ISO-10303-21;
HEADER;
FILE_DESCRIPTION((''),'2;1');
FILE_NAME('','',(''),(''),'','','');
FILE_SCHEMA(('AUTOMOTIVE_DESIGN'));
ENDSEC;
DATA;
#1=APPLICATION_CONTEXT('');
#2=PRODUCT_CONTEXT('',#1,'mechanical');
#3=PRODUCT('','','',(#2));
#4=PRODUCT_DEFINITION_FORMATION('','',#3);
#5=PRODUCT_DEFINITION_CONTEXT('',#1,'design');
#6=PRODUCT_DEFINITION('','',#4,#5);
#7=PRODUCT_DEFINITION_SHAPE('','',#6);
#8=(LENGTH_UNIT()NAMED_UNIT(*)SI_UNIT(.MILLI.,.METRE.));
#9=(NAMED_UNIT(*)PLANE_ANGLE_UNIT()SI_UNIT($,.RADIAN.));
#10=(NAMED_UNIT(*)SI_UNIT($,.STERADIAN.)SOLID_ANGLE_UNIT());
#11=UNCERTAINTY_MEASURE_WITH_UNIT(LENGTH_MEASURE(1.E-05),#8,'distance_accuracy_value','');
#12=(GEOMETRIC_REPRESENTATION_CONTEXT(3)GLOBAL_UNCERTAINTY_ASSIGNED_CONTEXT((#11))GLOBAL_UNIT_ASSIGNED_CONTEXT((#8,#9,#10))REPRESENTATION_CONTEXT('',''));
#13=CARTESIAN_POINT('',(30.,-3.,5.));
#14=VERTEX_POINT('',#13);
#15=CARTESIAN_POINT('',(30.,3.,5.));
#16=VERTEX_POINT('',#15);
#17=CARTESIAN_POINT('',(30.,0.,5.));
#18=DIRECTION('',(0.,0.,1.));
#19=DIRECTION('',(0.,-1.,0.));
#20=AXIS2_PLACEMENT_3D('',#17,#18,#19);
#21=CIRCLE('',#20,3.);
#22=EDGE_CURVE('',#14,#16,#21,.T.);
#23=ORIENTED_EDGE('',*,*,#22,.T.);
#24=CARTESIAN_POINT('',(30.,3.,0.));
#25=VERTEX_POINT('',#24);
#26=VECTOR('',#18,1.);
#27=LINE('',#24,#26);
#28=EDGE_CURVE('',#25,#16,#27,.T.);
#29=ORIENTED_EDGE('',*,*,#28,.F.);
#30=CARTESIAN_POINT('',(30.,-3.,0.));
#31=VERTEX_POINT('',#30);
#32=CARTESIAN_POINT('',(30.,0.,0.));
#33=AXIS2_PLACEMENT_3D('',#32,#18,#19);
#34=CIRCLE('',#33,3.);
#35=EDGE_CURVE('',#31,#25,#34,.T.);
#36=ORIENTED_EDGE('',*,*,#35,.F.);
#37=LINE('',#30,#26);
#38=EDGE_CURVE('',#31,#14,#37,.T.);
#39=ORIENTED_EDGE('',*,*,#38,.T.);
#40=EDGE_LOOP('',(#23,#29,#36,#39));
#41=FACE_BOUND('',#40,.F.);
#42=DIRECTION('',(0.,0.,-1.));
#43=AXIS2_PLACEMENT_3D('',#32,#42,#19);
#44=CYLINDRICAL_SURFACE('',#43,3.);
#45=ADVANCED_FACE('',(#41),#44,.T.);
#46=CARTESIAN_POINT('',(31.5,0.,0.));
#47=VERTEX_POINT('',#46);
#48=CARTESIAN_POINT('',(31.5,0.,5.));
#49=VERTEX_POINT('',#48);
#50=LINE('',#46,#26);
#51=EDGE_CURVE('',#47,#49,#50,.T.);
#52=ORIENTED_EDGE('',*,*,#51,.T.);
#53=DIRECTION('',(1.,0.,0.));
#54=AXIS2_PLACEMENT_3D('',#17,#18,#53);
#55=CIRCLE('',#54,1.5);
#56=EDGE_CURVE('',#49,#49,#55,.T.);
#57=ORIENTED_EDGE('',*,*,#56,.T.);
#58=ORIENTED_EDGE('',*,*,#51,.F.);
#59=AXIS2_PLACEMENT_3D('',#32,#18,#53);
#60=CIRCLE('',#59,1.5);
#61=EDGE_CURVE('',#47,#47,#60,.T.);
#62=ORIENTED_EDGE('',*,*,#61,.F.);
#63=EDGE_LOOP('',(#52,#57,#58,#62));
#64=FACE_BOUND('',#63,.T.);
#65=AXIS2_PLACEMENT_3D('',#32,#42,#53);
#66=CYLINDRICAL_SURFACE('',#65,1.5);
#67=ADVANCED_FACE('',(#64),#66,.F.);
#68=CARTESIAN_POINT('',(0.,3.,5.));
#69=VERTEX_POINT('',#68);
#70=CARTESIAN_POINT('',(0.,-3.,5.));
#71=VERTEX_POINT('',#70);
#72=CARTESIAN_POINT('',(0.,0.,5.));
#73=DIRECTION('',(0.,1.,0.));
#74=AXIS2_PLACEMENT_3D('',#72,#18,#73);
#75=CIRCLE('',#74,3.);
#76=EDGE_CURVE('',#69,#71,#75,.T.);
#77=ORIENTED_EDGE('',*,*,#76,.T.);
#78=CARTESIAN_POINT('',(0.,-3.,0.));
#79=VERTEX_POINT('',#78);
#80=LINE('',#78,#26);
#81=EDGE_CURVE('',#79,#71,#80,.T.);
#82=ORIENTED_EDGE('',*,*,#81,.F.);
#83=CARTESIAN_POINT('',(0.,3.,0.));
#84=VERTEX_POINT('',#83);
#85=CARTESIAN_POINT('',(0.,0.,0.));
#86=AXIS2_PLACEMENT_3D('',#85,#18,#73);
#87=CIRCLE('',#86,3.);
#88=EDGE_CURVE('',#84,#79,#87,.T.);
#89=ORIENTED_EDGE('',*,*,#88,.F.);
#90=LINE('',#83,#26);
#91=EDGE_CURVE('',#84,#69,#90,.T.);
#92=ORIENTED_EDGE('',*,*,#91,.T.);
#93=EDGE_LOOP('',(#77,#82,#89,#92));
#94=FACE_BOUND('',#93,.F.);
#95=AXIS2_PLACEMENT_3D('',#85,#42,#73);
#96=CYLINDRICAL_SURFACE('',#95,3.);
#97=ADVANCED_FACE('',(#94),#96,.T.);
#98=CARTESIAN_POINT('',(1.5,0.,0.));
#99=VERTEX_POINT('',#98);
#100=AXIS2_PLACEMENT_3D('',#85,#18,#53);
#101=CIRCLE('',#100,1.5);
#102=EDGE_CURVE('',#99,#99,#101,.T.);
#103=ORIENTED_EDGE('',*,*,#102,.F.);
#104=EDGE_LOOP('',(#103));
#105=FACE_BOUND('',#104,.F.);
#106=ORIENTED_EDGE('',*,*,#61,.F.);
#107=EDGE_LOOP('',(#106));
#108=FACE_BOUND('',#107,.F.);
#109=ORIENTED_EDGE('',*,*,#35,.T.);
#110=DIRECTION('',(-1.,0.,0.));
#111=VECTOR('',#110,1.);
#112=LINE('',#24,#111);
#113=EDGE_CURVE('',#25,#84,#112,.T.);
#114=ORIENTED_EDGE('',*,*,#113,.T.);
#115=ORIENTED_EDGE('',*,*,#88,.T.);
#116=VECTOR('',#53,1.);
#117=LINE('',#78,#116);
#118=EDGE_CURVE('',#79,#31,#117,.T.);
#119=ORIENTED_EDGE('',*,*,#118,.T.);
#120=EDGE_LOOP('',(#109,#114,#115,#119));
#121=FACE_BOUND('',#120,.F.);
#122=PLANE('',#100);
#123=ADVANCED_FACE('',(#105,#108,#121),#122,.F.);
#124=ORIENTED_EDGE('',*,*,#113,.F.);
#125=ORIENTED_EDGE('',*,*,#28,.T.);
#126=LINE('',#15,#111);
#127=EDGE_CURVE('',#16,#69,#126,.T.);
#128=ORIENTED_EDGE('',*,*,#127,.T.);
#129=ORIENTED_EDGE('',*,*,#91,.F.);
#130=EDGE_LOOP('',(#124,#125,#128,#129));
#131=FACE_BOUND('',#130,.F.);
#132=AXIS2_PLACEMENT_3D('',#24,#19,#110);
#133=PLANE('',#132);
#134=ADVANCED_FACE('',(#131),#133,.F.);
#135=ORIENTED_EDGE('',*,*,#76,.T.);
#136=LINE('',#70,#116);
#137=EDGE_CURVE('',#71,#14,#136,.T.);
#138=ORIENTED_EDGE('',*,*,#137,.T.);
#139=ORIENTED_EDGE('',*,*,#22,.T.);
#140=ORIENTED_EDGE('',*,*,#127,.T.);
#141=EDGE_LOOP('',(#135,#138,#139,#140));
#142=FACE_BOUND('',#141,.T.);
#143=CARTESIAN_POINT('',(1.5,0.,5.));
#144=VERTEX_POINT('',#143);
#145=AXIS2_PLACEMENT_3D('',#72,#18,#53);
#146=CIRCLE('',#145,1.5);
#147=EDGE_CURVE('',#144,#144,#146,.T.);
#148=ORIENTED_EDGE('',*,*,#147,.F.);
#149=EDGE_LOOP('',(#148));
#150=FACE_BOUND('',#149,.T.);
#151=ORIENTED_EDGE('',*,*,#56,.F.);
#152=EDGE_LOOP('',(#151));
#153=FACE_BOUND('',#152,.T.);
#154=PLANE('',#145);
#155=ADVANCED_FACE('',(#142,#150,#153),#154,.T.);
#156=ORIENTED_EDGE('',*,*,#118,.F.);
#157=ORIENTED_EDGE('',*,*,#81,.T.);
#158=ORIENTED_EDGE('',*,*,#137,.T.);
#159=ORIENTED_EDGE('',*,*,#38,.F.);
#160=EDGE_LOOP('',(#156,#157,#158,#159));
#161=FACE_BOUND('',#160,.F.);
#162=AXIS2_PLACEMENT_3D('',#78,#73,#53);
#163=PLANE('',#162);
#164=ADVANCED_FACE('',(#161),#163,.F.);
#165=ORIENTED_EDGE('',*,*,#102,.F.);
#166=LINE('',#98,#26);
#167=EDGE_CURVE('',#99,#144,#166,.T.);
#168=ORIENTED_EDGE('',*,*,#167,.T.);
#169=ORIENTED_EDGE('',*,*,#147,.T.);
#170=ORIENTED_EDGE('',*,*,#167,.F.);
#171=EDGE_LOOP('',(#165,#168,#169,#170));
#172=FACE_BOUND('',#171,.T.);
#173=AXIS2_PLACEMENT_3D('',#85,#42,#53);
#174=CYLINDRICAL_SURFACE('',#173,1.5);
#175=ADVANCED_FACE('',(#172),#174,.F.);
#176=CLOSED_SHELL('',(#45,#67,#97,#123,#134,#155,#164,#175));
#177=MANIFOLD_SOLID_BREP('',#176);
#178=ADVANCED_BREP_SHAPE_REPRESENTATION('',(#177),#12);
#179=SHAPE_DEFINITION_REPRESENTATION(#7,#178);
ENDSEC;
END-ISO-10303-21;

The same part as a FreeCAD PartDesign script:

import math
import FreeCAD as App
import Part
import Sketcher
from FreeCAD import Vector
Q = App.Units.Quantity

doc = App.newDocument("Part")
params = doc.addObject("Spreadsheet::Sheet", "Params")
for row, (alias, value) in enumerate([
    ("sketch1_diameter", "3 mm"),
    ("sketch1_radius", "3 mm"),
    ("sketch1_width", "30 mm"),
    ("pad1_length", "5 mm"),
], start=1):
    params.set(f"A{row}", alias)
    params.set(f"B{row}", "=" + value)
    params.setAlias(f"B{row}", alias)

body = doc.addObject("PartDesign::Body", "Body")

# Sketch on XY plane
sketch1 = body.newObject("Sketcher::SketchObject", "Sketch")
sketch1.AttachmentSupport = (doc.getObject("XY_Plane"), [""])
sketch1.MapMode = "FlatFace"
sketch1.addGeometry([
    Part.ArcOfCircle(Part.Circle(Vector(0, 0, 0), Vector(0, 0, 1), 3), math.radians(90), math.radians(270)),  # 0
    Part.LineSegment(Vector(0, -3, 0), Vector(30, -3, 0)),  # 1
    Part.ArcOfCircle(Part.Circle(Vector(30, 0, 0), Vector(0, 0, 1), 3), math.radians(-90), math.radians(90)),  # 2
    Part.LineSegment(Vector(30, 3, 0), Vector(0, 3, 0)),  # 3
    Part.Circle(Vector(0, 0, 0), Vector(0, 0, 1), 1.5),  # 4
    Part.Circle(Vector(30, 0, 0), Vector(0, 0, 1), 1.5),  # 5
], False)
sketch1.addConstraint([
    Sketcher.Constraint("Tangent", 0, 2, 1, 1),
    Sketcher.Constraint("Tangent", 1, 2, 2, 1),
    Sketcher.Constraint("Tangent", 2, 2, 3, 1),
    Sketcher.Constraint("Tangent", 3, 2, 0, 1),
    Sketcher.Constraint("Horizontal", 1),
    Sketcher.Constraint("Horizontal", 3),
    Sketcher.Constraint("Coincident", 0, 3, -1, 1),
    Sketcher.Constraint("Coincident", 4, 3, -1, 1),
    Sketcher.Constraint("Coincident", 5, 3, 2, 3),
    Sketcher.Constraint("Equal", 4, 5),
    Sketcher.Constraint("Diameter", 4, Q("3 mm")),
    Sketcher.Constraint("Radius", 0, Q("3 mm")),
    Sketcher.Constraint("DistanceX", 1, 1, 1, 2, Q("30 mm")),
])
sketch1.setExpression("Constraints[10]", "Params.sketch1_diameter")
sketch1.setExpression("Constraints[11]", "Params.sketch1_radius")
sketch1.setExpression("Constraints[12]", "Params.sketch1_width")
pad1 = body.newObject("PartDesign::Pad", "Pad")
pad1.Profile = sketch1
pad1.setExpression("Length", "Params.pad1_length")

doc.recompute()
